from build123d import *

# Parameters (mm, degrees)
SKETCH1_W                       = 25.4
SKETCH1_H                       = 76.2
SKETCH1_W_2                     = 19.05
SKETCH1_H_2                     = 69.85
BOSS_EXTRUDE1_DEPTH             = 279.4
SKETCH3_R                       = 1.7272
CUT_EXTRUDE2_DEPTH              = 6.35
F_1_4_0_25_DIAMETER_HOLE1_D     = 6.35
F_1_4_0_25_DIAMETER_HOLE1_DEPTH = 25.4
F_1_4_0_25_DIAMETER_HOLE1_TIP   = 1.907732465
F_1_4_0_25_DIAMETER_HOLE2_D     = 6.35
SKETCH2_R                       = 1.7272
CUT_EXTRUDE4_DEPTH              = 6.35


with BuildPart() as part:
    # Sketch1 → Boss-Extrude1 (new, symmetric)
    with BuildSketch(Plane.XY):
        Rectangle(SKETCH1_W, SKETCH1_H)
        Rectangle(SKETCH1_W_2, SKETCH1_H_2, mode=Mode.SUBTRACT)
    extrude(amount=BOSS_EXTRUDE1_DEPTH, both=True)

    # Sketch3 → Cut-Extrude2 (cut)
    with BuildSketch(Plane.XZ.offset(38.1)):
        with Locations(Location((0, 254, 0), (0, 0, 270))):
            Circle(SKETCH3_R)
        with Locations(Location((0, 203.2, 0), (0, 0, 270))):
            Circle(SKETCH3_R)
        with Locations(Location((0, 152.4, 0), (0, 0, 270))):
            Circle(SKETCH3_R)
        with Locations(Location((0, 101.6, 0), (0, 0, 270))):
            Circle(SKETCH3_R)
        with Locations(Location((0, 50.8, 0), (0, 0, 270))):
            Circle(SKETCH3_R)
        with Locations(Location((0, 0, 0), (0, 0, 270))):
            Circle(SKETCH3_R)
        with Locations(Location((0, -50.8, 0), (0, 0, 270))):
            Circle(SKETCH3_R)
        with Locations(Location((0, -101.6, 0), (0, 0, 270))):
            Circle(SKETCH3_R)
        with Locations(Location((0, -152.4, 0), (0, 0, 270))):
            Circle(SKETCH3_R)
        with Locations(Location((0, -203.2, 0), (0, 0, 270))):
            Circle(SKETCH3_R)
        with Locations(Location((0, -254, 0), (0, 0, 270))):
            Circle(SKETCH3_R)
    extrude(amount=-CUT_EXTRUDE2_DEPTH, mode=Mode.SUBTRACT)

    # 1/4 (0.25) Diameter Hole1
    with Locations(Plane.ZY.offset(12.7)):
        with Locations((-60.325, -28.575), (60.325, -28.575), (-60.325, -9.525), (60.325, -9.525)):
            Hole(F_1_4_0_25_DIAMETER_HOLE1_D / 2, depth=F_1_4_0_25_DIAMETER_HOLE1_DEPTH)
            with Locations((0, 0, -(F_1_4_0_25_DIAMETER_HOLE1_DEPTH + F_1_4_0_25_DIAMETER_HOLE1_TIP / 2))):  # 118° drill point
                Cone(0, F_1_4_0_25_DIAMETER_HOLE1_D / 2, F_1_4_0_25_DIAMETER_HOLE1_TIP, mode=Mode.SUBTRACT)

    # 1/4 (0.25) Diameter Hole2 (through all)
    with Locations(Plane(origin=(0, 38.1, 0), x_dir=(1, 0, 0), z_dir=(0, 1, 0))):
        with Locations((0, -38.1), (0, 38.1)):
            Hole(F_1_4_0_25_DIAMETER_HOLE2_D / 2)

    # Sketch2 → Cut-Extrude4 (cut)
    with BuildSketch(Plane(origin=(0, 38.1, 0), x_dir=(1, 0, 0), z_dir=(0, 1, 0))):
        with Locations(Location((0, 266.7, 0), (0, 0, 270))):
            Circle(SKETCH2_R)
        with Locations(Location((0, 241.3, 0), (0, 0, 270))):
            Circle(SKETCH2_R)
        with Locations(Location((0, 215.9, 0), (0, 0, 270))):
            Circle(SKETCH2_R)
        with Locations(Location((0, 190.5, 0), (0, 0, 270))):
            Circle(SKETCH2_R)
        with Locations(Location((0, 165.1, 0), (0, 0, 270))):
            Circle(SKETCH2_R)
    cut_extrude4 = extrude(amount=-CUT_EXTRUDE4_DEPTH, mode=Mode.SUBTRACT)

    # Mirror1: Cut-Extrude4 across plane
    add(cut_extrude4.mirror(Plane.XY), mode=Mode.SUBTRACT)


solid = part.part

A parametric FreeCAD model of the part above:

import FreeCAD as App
import Part
import Sketcher

V = App.Vector
Q = App.Units.Quantity

doc = App.newDocument("Part")
body = doc.addObject("PartDesign::Body", "Body")

# Sketch on XY plane
sketch1 = doc.addObject("Sketcher::SketchObject", "Sketch")
body.addObject(sketch1)
sketch1.AttachmentSupport = (doc.XY_Plane, [""])
sketch1.MapMode = "FlatFace"
sketch1.addGeometry([
    Part.LineSegment(V(-13, 38, 0), V(-13, -38, 0)),  # 0
    Part.LineSegment(V(-13, -38, 0), V(13, -38, 0)),  # 1
    Part.LineSegment(V(13, -38, 0), V(13, 38, 0)),  # 2
    Part.LineSegment(V(13, 38, 0), V(-13, 38, 0)),  # 3
    Part.LineSegment(V(10, -35, 0), V(-10, -35, 0)),  # 4
    Part.LineSegment(V(-10, -35, 0), V(-10, 35, 0)),  # 5
    Part.LineSegment(V(-10, 35, 0), V(10, 35, 0)),  # 6
    Part.LineSegment(V(10, 35, 0), V(10, -35, 0)),  # 7
], False)
sketch1.addConstraint([
    Sketcher.Constraint("Coincident", 0, 2, 1, 1),
    Sketcher.Constraint("Coincident", 1, 2, 2, 1),
    Sketcher.Constraint("Coincident", 2, 2, 3, 1),
    Sketcher.Constraint("Coincident", 3, 2, 0, 1),
    Sketcher.Constraint("Coincident", 4, 2, 5, 1),
    Sketcher.Constraint("Coincident", 5, 2, 6, 1),
    Sketcher.Constraint("Coincident", 6, 2, 7, 1),
    Sketcher.Constraint("Coincident", 7, 2, 4, 1),
    Sketcher.Constraint("Vertical", 0),
    Sketcher.Constraint("Horizontal", 1),
    Sketcher.Constraint("Vertical", 2),
    Sketcher.Constraint("Horizontal", 3),
    Sketcher.Constraint("Horizontal", 4),
    Sketcher.Constraint("Vertical", 5),
    Sketcher.Constraint("Horizontal", 6),
    Sketcher.Constraint("Vertical", 7),
    Sketcher.Constraint("Symmetric", 0, 2, 2, 2, -1, 1),
    Sketcher.Constraint("Symmetric", 4, 2, 6, 2, -1, 1),
    Sketcher.Constraint("DistanceX", 1, 1, 1, 2, Q("1 in")),
    Sketcher.Constraint("DistanceY", 0, 2, 0, 1, Q("3 in")),
    Sketcher.Constraint("DistanceX", 4, 2, 4, 1, Q("0.75 in")),
    Sketcher.Constraint("DistanceY", 5, 1, 5, 2, Q("2.75 in")),
])
pad1 = doc.addObject("PartDesign::Pad", "Pad")
body.addObject(pad1)
pad1.Profile = sketch1
pad1.Length = Q("22 in")
pad1.Midplane = True

# Sketch on XZ plane
sketch2 = doc.addObject("Sketcher::SketchObject", "Sketch001")
body.addObject(sketch2)
sketch2.AttachmentSupport = (doc.XZ_Plane, [""])
sketch2.MapMode = "FlatFace"
sketch2.AttachmentOffset = App.Placement(V(0, 0, 1.5 * 25.4), App.Rotation())
sketch2.addGeometry([
    Part.Circle(V(0, 254, 0), V(0, 0, 1), 1.7),  # 0
    Part.Circle(V(0, 203.2, 0), V(0, 0, 1), 1.7),  # 1
    Part.Circle(V(0, 152.4, 0), V(0, 0, 1), 1.7),  # 2
    Part.Circle(V(0, 101.6, 0), V(0, 0, 1), 1.7),  # 3
    Part.Circle(V(0, 50.8, 0), V(0, 0, 1), 1.7),  # 4
    Part.Circle(V(0, 0, 0), V(0, 0, 1), 1.7),  # 5
    Part.Circle(V(0, -50.8, 0), V(0, 0, 1), 1.7),  # 6
    Part.Circle(V(0, -101.6, 0), V(0, 0, 1), 1.7),  # 7
    Part.Circle(V(0, -152.4, 0), V(0, 0, 1), 1.7),  # 8
    Part.Circle(V(0, -203.2, 0), V(0, 0, 1), 1.7),  # 9
    Part.Circle(V(0, -254, 0), V(0, 0, 1), 1.7),  # 10
], False)
sketch2.addConstraint([
    Sketcher.Constraint("Coincident", 5, 3, -1, 1),
    Sketcher.Constraint("Equal", 0, 1),
    Sketcher.Constraint("Equal", 1, 2),
    Sketcher.Constraint("Equal", 2, 3),
    Sketcher.Constraint("Equal", 3, 4),
    Sketcher.Constraint("Equal", 4, 5),
    Sketcher.Constraint("Equal", 5, 6),
    Sketcher.Constraint("Equal", 6, 7),
    Sketcher.Constraint("Equal", 7, 8),
    Sketcher.Constraint("Equal", 8, 9),
    Sketcher.Constraint("Equal", 9, 10),
    Sketcher.Constraint("Symmetric", 4, 3, 6, 3, -1, 1),
    Sketcher.Constraint("Symmetric", 3, 3, 7, 3, -1, 1),
    Sketcher.Constraint("Symmetric", 2, 3, 8, 3, -1, 1),
    Sketcher.Constraint("Symmetric", 1, 3, 9, 3, -1, 1),
    Sketcher.Constraint("Symmetric", 0, 3, 10, 3, -1, 1),
    Sketcher.Constraint("PointOnObject", 0, 3, -2),
    Sketcher.Constraint("PointOnObject", 1, 3, -2),
    Sketcher.Constraint("PointOnObject", 2, 3, -2),
    Sketcher.Constraint("PointOnObject", 3, 3, -2),
    Sketcher.Constraint("PointOnObject", 4, 3, -2),
    Sketcher.Constraint("Diameter", 0, Q("0.136 in")),
    Sketcher.Constraint("DistanceY", -1, 1, 0, 3, Q("10 in")),
    Sketcher.Constraint("DistanceY", -1, 1, 1, 3, Q("8 in")),
    Sketcher.Constraint("DistanceY", -1, 1, 2, 3, Q("6 in")),
    Sketcher.Constraint("DistanceY", -1, 1, 3, 3, Q("4 in")),
    Sketcher.Constraint("DistanceY", -1, 1, 4, 3, Q("2 in")),
])
pocket1 = doc.addObject("PartDesign::Pocket", "Pocket")
body.addObject(pocket1)
pocket1.Profile = sketch2
pocket1.Length = Q("0.25 in")

# Sketch on YZ plane
sketch3 = doc.addObject("Sketcher::SketchObject", "Sketch002")
body.addObject(sketch3)
sketch3.AttachmentSupport = (doc.YZ_Plane, [""])
sketch3.MapMode = "FlatFace"
sketch3.AttachmentOffset = App.Placement(V(0, 0, -0.5 * 25.4), App.Rotation())
sketch3.addGeometry([
    Part.Circle(V(-28.6, -60.3, 0), V(0, 0, 1), 3.2),
    Part.Circle(V(-28.6, 60.3, 0), V(0, 0, 1), 3.2),
    Part.Circle(V(-9.5, -60.3, 0), V(0, 0, 1), 3.2),
    Part.Circle(V(-9.5, 60.3, 0), V(0, 0, 1), 3.2),
], False)
sketch3.addConstraint([
    Sketcher.Constraint("Equal", 0, 1),
    Sketcher.Constraint("Equal", 1, 2),
    Sketcher.Constraint("Equal", 2, 3),
    Sketcher.Constraint("Symmetric", 0, 3, 1, 3, -1),
    Sketcher.Constraint("Symmetric", 2, 3, 3, 3, -1),
    Sketcher.Constraint("Horizontal", 0, 3, 2, 3),
    Sketcher.Constraint("Diameter", 0, Q("0.25 in")),
    Sketcher.Constraint("DistanceY", 0, 3, 1, 3, Q("4.75 in")),
    Sketcher.Constraint("DistanceX", 0, 3, 2, 3, Q("0.75 in")),
    Sketcher.Constraint("DistanceX", 0, 3, -1, 1, Q("1.125 in")),
])
doc.recompute()
hole = doc.addObject("PartDesign::Hole", "Hole")
body.addObject(hole)
hole.Profile = sketch3
hole.ThreadType = "None"
hole.Diameter = Q("0.25 in")
hole.DepthType = "Dimension"
hole.Depth = Q("1 in")
hole.DrillPoint = "Angled"
hole.DrillPointAngle = 118
hole.Reversed = True

# Sketch on XZ plane
sketch4 = doc.addObject("Sketcher::SketchObject", "Sketch003")
body.addObject(sketch4)
sketch4.AttachmentSupport = (doc.XZ_Plane, [""])
sketch4.MapMode = "FlatFace"
sketch4.AttachmentOffset = App.Placement(V(0, 0, -1.5 * 25.4), App.Rotation())
sketch4.addGeometry([
    Part.Circle(V(0, 38.1, 0), V(0, 0, 1), 3.2),
    Part.Circle(V(0, -38.1, 0), V(0, 0, 1), 3.2),
], False)
sketch4.addConstraint([
    Sketcher.Constraint("Equal", 0, 1),
    Sketcher.Constraint("Symmetric", 0, 3, 1, 3, -1, 1),
    Sketcher.Constraint("PointOnObject", 0, 3, -2),
    Sketcher.Constraint("Diameter", 0, Q("0.25 in")),
    Sketcher.Constraint("DistanceY", 1, 3, 0, 3, Q("3 in")),
])
doc.recompute()
hole2 = doc.addObject("PartDesign::Hole", "Hole001")
body.addObject(hole2)
hole2.Profile = sketch4
hole2.ThreadType = "None"
hole2.Diameter = Q("0.25 in")
hole2.DepthType = "ThroughAll"
hole2.Reversed = True

# Sketch on XZ plane
sketch5 = doc.addObject("Sketcher::SketchObject", "Sketch004")
body.addObject(sketch5)
sketch5.AttachmentSupport = (doc.XZ_Plane, [""])
sketch5.MapMode = "FlatFace"
sketch5.AttachmentOffset = App.Placement(V(0, 0, -1.5 * 25.4), App.Rotation())
sketch5.addGeometry([
    Part.Circle(V(0, -266.7, 0), V(0, 0, 1), 1.7),  # 0
    Part.Circle(V(0, -241.3, 0), V(0, 0, 1), 1.7),  # 1
    Part.Circle(V(0, -215.9, 0), V(0, 0, 1), 1.7),  # 2
    Part.Circle(V(0, -190.5, 0), V(0, 0, 1), 1.7),  # 3
    Part.Circle(V(0, -165.1, 0), V(0, 0, 1), 1.7),  # 4
], False)
sketch5.addConstraint([
    Sketcher.Constraint("Equal", 0, 1),
    Sketcher.Constraint("Equal", 1, 2),
    Sketcher.Constraint("Equal", 2, 3),
    Sketcher.Constraint("Equal", 3, 4),
    Sketcher.Constraint("PointOnObject", 0, 3, -2),
    Sketcher.Constraint("PointOnObject", 1, 3, -2),
    Sketcher.Constraint("PointOnObject", 2, 3, -2),
    Sketcher.Constraint("PointOnObject", 3, 3, -2),
    Sketcher.Constraint("PointOnObject", 4, 3, -2),
    Sketcher.Constraint("Diameter", 0, Q("0.136 in")),
    Sketcher.Constraint("DistanceY", 0, 3, 1, 3, Q("1 in")),
    Sketcher.Constraint("DistanceY", 1, 3, 2, 3, Q("1 in")),
    Sketcher.Constraint("DistanceY", 2, 3, 3, 3, Q("1 in")),
    Sketcher.Constraint("DistanceY", 3, 3, 4, 3, Q("1 in")),
    Sketcher.Constraint("DistanceY", 0, 3, -1, 1, Q("10.5 in")),
])
pocket2 = doc.addObject("PartDesign::Pocket", "Pocket001")
body.addObject(pocket2)
pocket2.Profile = sketch5
pocket2.Length = Q("0.25 in")
pocket2.Reversed = True
doc.recompute()

mirrored = doc.addObject("PartDesign::Mirrored", "Mirrored")
body.addObject(mirrored)
mirrored.Originals = [pocket2]
mirrored.MirrorPlane = (doc.XY_Plane, [""])
body.Tip = mirrored

doc.recompute()
